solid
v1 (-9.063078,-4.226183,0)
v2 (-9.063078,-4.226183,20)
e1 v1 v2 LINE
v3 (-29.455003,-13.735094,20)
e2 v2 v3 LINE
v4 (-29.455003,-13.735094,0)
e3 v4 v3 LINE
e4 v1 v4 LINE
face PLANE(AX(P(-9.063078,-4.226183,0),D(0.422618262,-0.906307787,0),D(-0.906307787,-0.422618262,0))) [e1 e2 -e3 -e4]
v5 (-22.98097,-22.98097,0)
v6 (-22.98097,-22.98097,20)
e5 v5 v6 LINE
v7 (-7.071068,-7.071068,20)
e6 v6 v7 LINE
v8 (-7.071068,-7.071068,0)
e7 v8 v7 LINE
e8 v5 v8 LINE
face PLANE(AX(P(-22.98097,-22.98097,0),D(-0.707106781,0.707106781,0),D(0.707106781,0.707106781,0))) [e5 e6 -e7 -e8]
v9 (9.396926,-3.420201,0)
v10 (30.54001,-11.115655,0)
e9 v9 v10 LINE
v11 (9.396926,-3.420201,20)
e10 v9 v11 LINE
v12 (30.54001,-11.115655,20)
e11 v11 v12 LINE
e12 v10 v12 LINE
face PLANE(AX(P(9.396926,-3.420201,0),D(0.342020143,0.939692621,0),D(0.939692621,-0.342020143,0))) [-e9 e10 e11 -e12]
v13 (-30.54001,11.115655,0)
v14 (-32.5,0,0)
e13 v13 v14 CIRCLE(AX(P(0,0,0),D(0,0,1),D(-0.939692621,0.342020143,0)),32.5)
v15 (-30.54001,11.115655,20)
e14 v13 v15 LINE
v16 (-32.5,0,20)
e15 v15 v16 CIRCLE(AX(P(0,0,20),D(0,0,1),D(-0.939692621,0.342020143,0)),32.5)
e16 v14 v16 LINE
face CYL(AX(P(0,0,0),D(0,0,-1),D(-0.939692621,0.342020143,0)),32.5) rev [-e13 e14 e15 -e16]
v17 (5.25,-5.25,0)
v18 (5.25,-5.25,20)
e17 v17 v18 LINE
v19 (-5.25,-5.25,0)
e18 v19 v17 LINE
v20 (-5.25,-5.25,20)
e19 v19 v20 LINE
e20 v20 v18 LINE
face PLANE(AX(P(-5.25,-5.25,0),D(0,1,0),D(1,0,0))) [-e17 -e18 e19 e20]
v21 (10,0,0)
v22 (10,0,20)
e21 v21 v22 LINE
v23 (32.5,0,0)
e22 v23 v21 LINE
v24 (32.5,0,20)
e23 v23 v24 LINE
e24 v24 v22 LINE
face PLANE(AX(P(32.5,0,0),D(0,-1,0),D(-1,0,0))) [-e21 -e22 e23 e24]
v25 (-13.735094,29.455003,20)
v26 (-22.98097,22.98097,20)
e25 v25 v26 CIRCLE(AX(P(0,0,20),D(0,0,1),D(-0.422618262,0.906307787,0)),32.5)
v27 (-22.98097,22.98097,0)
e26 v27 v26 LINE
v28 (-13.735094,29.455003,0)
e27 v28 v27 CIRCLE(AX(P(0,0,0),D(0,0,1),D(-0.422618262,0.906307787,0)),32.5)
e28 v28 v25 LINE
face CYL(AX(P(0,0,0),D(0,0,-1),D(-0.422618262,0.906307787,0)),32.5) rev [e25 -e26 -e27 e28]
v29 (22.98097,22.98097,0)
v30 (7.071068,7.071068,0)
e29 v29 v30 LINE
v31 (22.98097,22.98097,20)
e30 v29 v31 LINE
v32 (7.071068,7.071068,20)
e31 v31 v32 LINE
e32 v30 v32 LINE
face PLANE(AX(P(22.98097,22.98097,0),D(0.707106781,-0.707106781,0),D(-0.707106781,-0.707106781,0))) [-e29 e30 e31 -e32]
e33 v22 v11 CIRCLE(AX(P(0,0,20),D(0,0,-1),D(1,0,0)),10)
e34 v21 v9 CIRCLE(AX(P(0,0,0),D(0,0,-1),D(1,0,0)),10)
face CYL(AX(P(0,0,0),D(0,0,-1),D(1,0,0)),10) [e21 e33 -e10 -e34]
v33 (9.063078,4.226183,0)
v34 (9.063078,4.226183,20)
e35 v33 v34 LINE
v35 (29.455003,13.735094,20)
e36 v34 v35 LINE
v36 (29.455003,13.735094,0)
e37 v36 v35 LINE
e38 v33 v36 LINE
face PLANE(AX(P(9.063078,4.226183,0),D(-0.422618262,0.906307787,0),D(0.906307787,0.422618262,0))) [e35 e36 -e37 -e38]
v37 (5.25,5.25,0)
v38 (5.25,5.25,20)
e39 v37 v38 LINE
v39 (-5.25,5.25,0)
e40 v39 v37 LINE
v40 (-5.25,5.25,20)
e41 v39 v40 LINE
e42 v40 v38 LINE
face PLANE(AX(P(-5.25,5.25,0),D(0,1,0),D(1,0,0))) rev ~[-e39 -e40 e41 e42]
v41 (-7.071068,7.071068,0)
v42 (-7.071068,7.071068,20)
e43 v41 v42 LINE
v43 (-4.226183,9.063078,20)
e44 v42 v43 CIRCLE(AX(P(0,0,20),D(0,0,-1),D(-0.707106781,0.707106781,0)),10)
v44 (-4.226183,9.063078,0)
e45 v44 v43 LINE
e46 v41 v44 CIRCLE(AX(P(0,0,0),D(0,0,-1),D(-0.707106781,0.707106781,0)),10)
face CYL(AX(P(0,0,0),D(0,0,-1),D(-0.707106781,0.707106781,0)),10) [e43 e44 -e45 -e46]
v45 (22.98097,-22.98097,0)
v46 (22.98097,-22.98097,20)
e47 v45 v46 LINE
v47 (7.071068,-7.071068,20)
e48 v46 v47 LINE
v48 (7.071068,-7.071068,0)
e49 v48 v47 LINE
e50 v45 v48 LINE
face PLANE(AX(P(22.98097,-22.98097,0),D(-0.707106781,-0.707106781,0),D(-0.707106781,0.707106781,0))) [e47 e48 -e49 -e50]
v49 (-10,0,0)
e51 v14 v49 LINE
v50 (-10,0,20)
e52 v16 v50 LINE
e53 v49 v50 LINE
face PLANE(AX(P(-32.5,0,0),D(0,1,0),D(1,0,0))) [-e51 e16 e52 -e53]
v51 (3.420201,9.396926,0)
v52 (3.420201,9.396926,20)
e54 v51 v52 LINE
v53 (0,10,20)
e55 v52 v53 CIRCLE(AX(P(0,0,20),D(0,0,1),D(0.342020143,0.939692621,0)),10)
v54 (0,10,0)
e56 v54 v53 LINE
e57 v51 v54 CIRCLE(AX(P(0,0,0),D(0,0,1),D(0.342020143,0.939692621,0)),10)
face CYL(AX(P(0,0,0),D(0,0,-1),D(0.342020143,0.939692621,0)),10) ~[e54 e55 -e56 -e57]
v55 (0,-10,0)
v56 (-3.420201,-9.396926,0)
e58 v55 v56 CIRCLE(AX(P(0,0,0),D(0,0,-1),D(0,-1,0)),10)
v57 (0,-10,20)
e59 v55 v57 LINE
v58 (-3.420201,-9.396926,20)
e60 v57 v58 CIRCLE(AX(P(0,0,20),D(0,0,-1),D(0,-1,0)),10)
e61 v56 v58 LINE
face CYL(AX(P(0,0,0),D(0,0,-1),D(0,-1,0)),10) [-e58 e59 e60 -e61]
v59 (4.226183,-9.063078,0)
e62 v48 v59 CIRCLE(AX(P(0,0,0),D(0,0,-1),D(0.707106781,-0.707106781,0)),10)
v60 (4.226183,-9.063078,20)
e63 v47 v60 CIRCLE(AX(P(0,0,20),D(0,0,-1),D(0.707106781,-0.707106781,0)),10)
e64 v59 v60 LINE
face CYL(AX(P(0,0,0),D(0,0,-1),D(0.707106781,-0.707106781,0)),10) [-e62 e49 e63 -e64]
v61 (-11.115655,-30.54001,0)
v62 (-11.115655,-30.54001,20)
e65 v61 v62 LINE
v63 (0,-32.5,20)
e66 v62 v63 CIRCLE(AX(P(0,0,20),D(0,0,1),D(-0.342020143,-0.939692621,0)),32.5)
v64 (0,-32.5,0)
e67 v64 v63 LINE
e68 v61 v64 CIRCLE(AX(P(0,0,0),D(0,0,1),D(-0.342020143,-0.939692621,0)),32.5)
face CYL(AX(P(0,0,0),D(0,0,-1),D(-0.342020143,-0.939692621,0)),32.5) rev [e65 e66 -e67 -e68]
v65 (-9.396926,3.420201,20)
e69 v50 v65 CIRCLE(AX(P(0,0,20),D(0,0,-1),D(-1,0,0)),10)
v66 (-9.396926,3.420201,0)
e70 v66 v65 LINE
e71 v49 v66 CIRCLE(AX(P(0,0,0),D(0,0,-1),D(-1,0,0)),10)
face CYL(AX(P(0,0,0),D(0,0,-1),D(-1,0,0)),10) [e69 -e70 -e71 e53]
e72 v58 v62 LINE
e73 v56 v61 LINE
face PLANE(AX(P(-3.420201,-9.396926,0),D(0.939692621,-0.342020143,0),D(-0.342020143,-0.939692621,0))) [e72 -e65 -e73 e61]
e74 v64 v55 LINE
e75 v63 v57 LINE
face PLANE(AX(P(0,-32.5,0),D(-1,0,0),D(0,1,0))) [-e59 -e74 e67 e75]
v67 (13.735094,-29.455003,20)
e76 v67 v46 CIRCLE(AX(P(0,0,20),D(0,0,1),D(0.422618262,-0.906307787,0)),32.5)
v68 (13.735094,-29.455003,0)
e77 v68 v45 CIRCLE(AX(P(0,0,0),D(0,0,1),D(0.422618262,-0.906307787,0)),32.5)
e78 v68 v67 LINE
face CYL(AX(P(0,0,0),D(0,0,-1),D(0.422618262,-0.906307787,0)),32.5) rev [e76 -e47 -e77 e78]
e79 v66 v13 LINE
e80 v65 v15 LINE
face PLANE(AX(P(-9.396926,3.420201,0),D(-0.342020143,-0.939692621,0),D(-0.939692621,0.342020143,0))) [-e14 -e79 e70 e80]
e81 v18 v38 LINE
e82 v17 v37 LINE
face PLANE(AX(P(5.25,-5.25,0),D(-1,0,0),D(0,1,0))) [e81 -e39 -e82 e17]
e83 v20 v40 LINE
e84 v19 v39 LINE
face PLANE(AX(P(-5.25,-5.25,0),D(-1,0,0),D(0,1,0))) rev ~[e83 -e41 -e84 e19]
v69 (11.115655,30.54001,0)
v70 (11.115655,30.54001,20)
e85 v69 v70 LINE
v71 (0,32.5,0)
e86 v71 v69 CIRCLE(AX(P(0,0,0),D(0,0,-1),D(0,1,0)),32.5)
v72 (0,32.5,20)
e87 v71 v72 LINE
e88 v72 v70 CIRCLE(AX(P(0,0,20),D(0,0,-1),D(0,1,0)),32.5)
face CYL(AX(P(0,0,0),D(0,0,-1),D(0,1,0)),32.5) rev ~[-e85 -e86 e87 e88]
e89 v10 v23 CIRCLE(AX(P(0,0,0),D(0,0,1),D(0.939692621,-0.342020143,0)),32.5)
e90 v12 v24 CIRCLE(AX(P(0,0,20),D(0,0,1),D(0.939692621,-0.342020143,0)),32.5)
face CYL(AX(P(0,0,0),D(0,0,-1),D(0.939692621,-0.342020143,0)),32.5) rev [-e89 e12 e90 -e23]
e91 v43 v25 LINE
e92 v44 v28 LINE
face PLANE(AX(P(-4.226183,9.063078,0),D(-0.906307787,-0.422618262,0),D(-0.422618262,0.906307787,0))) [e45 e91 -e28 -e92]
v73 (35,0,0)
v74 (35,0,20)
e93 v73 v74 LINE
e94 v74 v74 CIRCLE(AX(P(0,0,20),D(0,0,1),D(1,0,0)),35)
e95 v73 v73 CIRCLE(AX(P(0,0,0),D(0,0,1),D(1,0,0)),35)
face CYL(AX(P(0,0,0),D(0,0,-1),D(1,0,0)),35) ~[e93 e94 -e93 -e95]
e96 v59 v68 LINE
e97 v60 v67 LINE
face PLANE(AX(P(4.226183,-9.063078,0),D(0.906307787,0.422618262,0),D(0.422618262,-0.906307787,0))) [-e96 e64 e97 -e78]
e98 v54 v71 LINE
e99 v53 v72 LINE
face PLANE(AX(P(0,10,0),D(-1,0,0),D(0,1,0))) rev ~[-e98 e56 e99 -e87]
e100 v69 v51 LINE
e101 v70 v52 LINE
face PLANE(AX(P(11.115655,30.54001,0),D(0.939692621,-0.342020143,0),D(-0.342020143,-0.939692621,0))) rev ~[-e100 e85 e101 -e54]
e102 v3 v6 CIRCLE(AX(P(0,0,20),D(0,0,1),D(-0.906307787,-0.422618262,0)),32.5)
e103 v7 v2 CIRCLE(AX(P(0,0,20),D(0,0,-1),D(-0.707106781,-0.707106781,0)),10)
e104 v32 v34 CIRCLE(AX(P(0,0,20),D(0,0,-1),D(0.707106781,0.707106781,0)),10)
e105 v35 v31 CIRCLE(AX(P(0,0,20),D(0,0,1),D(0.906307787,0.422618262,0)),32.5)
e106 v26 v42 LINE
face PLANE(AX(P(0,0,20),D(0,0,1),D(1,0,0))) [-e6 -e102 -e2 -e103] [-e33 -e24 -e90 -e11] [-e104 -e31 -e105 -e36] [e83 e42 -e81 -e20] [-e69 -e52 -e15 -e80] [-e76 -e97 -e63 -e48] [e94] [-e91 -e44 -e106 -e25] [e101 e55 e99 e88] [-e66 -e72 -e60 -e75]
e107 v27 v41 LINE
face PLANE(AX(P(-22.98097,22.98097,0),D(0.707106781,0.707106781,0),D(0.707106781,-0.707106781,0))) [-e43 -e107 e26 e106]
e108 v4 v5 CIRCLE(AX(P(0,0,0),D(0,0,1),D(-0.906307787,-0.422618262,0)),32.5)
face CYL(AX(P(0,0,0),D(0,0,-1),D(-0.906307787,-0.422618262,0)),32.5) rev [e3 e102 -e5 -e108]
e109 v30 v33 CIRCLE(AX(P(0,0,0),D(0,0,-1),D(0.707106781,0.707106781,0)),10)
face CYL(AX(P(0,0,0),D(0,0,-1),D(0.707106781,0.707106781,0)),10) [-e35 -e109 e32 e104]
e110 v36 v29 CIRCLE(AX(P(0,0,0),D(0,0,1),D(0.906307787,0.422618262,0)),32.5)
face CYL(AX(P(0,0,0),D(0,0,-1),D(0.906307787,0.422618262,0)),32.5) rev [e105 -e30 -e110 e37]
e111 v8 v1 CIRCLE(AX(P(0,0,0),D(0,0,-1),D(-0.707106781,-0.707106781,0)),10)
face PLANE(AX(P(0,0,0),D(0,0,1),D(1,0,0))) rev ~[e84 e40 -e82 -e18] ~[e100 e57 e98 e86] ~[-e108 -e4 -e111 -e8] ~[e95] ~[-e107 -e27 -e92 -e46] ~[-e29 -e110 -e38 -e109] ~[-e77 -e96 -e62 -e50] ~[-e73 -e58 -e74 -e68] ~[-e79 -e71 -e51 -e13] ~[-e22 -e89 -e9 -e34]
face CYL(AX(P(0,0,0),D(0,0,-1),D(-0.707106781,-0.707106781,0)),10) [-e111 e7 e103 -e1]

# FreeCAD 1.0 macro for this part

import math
import FreeCAD as App
import Part
import Sketcher
from FreeCAD import Vector
Q = App.Units.Quantity


def add_polygon(sketch, points):
    """Adds a closed chain of lines whose ends are joined by coincident constraints."""
    first, n = sketch.GeometryCount, len(points)
    for a, b in zip(points, points[1:] + points[:1]):
        sketch.addGeometry(Part.LineSegment(App.Vector(*a, 0), App.Vector(*b, 0)), False)
    for i in range(n):
        sketch.addConstraint(Sketcher.Constraint("Coincident", first + i, 2, first + (i + 1) % n, 1))

doc = App.newDocument("Part")
params = doc.addObject("Spreadsheet::Sheet", "Params")
for row, (alias, value) in enumerate([
    ("sketch1_diameter", "70 mm"),
    ("sketch1_radius", "10 mm"),
    ("sketch1_radius2", "32.5 mm"),
    ("sketch1_width", "10.5 mm"),
    ("pad1_length", "20 mm"),
], start=1):
    params.set(f"A{row}", alias)
    params.set(f"B{row}", "=" + value)
    params.setAlias(f"B{row}", alias)

body = doc.addObject("PartDesign::Body", "Body")

sketch1 = body.newObject("Sketcher::SketchObject", "Sketch")
sketch1.AttachmentSupport = (doc.getObject("XY_Plane"), [""])
sketch1.MapMode = "FlatFace"
sketch1.addGeometry(Part.Circle(Vector(0, 0, 0), Vector(0, 0, 1), 35), False)
sketch1.addGeometry(Part.ArcOfCircle(Part.Circle(Vector(0, 0, 0), Vector(0, 0, 1), 32.5), math.radians(-110), math.radians(-90)), False)
sketch1.addGeometry(Part.LineSegment(Vector(-11.1, -30.5, 0), Vector(-3.4, -9.4, 0)), False)
sketch1.addGeometry(Part.ArcOfCircle(Part.Circle(Vector(0, 0, 0), Vector(0, 0, 1), 10), math.radians(-110), math.radians(-90)), False)
sketch1.addGeometry(Part.LineSegment(Vector(0, -10, 0), Vector(0, -32.5, 0)), False)
sketch1.addGeometry(Part.LineSegment(Vector(-29.5, -13.7, 0), Vector(-9.1, -4.2, 0)), False)
sketch1.addGeometry(Part.ArcOfCircle(Part.Circle(Vector(0, 0, 0), Vector(0, 0, 1), 10), math.radians(-155), math.radians(-135)), False)
sketch1.addGeometry(Part.LineSegment(Vector(-7.1, -7.1, 0), Vector(-23, -23, 0)), False)
sketch1.addGeometry(Part.ArcOfCircle(Part.Circle(Vector(0, 0, 0), Vector(0, 0, 1), 32.5), math.radians(-155), math.radians(-135)), False)
sketch1.addGeometry(Part.LineSegment(Vector(13.7, -29.5, 0), Vector(4.2, -9.1, 0)), False)
sketch1.addGeometry(Part.ArcOfCircle(Part.Circle(Vector(0, 0, 0), Vector(0, 0, 1), 10), math.radians(-65), math.radians(-45)), False)
sketch1.addGeometry(Part.LineSegment(Vector(7.1, -7.1, 0), Vector(23, -23, 0)), False)
sketch1.addGeometry(Part.ArcOfCircle(Part.Circle(Vector(0, 0, 0), Vector(0, 0, 1), 32.5), math.radians(-65), math.radians(-45)), False)
sketch1.addGeometry(Part.ArcOfCircle(Part.Circle(Vector(0, 0, 0), Vector(0, 0, 1), 32.5), math.radians(-20), math.radians(0)), False)
sketch1.addGeometry(Part.LineSegment(Vector(30.5, -11.1, 0), Vector(9.4, -3.4, 0)), False)
sketch1.addGeometry(Part.ArcOfCircle(Part.Circle(Vector(0, 0, 0), Vector(0, 0, 1), 10), math.radians(-20), math.radians(0)), False)
sketch1.addGeometry(Part.LineSegment(Vector(10, 0, 0), Vector(32.5, 0, 0)), False)
sketch1.addGeometry(Part.ArcOfCircle(Part.Circle(Vector(0, 0, 0), Vector(0, 0, 1), 32.5), math.radians(160), math.radians(180)), False)
sketch1.addGeometry(Part.LineSegment(Vector(-30.5, 11.1, 0), Vector(-9.4, 3.4, 0)), False)
sketch1.addGeometry(Part.ArcOfCircle(Part.Circle(Vector(0, 0, 0), Vector(0, 0, 1), 10), math.radians(160), math.radians(180)), False)
sketch1.addGeometry(Part.LineSegment(Vector(-10, 0, 0), Vector(-32.5, 0, 0)), False)
sketch1.addGeometry(Part.ArcOfCircle(Part.Circle(Vector(0, 0, 0), Vector(0, 0, 1), 32.5), math.radians(115), math.radians(135)), False)
sketch1.addGeometry(Part.LineSegment(Vector(-13.7, 29.5, 0), Vector(-4.2, 9.1, 0)), False)
sketch1.addGeometry(Part.ArcOfCircle(Part.Circle(Vector(0, 0, 0), Vector(0, 0, 1), 10), math.radians(115), math.radians(135)), False)
sketch1.addGeometry(Part.LineSegment(Vector(-7.1, 7.1, 0), Vector(-23, 23, 0)), False)
add_polygon(sketch1, [(5.2, -5.2), (-5.2, -5.2), (-5.2, 5.2), (5.2, 5.2)])
sketch1.addGeometry(Part.LineSegment(Vector(29.5, 13.7, 0), Vector(9.1, 4.2, 0)), False)
sketch1.addGeometry(Part.ArcOfCircle(Part.Circle(Vector(0, 0, 0), Vector(0, 0, 1), 10), math.radians(25), math.radians(45)), False)
sketch1.addGeometry(Part.LineSegment(Vector(7.1, 7.1, 0), Vector(23, 23, 0)), False)
sketch1.addGeometry(Part.ArcOfCircle(Part.Circle(Vector(0, 0, 0), Vector(0, 0, 1), 32.5), math.radians(25), math.radians(45)), False)
sketch1.addGeometry(Part.ArcOfCircle(Part.Circle(Vector(0, 0, 0), Vector(0, 0, 1), 10), math.radians(70), math.radians(90)), False)
sketch1.addGeometry(Part.LineSegment(Vector(0, 10, 0), Vector(0, 32.5, 0)), False)
sketch1.addGeometry(Part.ArcOfCircle(Part.Circle(Vector(0, 0, 0), Vector(0, 0, 1), 32.5), math.radians(70), math.radians(90)), False)
sketch1.addGeometry(Part.LineSegment(Vector(11.1, 30.5, 0), Vector(3.4, 9.4, 0)), False)
sketch1.addConstraint([
    Sketcher.Constraint("Coincident", 1, 1, 2, 1),
    Sketcher.Constraint("Coincident", 2, 2, 3, 1),
    Sketcher.Constraint("Coincident", 3, 2, 4, 1),
    Sketcher.Constraint("Coincident", 4, 2, 1, 2),
    Sketcher.Constraint("Coincident", 5, 2, 6, 1),
    Sketcher.Constraint("Coincident", 6, 2, 7, 1),
    Sketcher.Constraint("Coincident", 7, 2, 8, 2),
    Sketcher.Constraint("Coincident", 8, 1, 5, 1),
    Sketcher.Constraint("Coincident", 9, 2, 10, 1),
    Sketcher.Constraint("Coincident", 10, 2, 11, 1),
    Sketcher.Constraint("Coincident", 11, 2, 12, 2),
    Sketcher.Constraint("Coincident", 12, 1, 9, 1),
    Sketcher.Constraint("Coincident", 13, 1, 14, 1),
    Sketcher.Constraint("Coincident", 14, 2, 15, 1),
    Sketcher.Constraint("Coincident", 15, 2, 16, 1),
    Sketcher.Constraint("Coincident", 16, 2, 13, 2),
    Sketcher.Constraint("Coincident", 17, 1, 18, 1),
    Sketcher.Constraint("Coincident", 18, 2, 19, 1),
    Sketcher.Constraint("Coincident", 19, 2, 20, 1),
    Sketcher.Constraint("Coincident", 20, 2, 17, 2),
    Sketcher.Constraint("Coincident", 21, 1, 22, 1),
    Sketcher.Constraint("Coincident", 22, 2, 23, 1),
    Sketcher.Constraint("Coincident", 23, 2, 24, 1),
    Sketcher.Constraint("Coincident", 24, 2, 21, 2),
    Sketcher.Constraint("Coincident", 29, 2, 30, 1),
    Sketcher.Constraint("Coincident", 30, 2, 31, 1),
    Sketcher.Constraint("Coincident", 31, 2, 32, 2),
    Sketcher.Constraint("Coincident", 32, 1, 29, 1),
    Sketcher.Constraint("Coincident", 33, 2, 34, 1),
    Sketcher.Constraint("Coincident", 34, 2, 35, 2),
    Sketcher.Constraint("Coincident", 35, 1, 36, 1),
    Sketcher.Constraint("Coincident", 36, 2, 33, 1),
    Sketcher.Constraint("Vertical", 4),
    Sketcher.Constraint("Horizontal", 16),
    Sketcher.Constraint("Horizontal", 20),
    Sketcher.Constraint("Horizontal", 25),
    Sketcher.Constraint("Vertical", 26),
    Sketcher.Constraint("Horizontal", 27),
    Sketcher.Constraint("Vertical", 28),
    Sketcher.Constraint("Vertical", 34),
    Sketcher.Constraint("Coincident", 0, 3, -1, 1),
    Sketcher.Constraint("Coincident", 1, 3, -1, 1),
    Sketcher.Constraint("Coincident", 3, 3, -1, 1),
    Sketcher.Constraint("Coincident", 6, 3, -1, 1),
    Sketcher.Constraint("Coincident", 8, 3, -1, 1),
    Sketcher.Constraint("Coincident", 10, 3, -1, 1),
    Sketcher.Constraint("Coincident", 12, 3, -1, 1),
    Sketcher.Constraint("Coincident", 13, 3, -1, 1),
    Sketcher.Constraint("Coincident", 15, 3, -1, 1),
    Sketcher.Constraint("Coincident", 17, 3, -1, 1),
    Sketcher.Constraint("Coincident", 19, 3, -1, 1),
    Sketcher.Constraint("Coincident", 21, 3, -1, 1),
    Sketcher.Constraint("Coincident", 23, 3, -1, 1),
    Sketcher.Constraint("Coincident", 30, 3, -1, 1),
    Sketcher.Constraint("Coincident", 32, 3, -1, 1),
    Sketcher.Constraint("Coincident", 33, 3, -1, 1),
    Sketcher.Constraint("Coincident", 35, 3, -1, 1),
    Sketcher.Constraint("Equal", 3, 6),
    Sketcher.Constraint("Equal", 1, 8),
    Sketcher.Constraint("Equal", 6, 10),
    Sketcher.Constraint("Equal", 8, 12),
    Sketcher.Constraint("Equal", 12, 13),
    Sketcher.Constraint("Equal", 10, 15),
    Sketcher.Constraint("Equal", 13, 17),
    Sketcher.Constraint("Equal", 15, 19),
    Sketcher.Constraint("Equal", 17, 21),
    Sketcher.Constraint("Equal", 19, 23),
    Sketcher.Constraint("Equal", 23, 30),
    Sketcher.Constraint("Equal", 21, 32),
    Sketcher.Constraint("Equal", 30, 33),
    Sketcher.Constraint("Equal", 32, 35),
    Sketcher.Constraint("Symmetric", 25, 2, 27, 2, -1, 1),
    Sketcher.Constraint("PointOnObject", 3, 2, -2),
    Sketcher.Constraint("PointOnObject", 15, 2, -1),
    Sketcher.Constraint("PointOnObject", 19, 2, -1),
    Sketcher.Constraint("PointOnObject", 33, 2, -2),
    Sketcher.Constraint("Perpendicular", 5, 9),
    Sketcher.Constraint("Perpendicular", 7, 11),
    Sketcher.Constraint("Perpendicular", 2, 14),
    Sketcher.Constraint("Parallel", 14, 18),
    Sketcher.Constraint("Parallel", 9, 22),
    Sketcher.Constraint("Parallel", 11, 24),
    Sketcher.Constraint("Perpendicular", 22, 29),
    Sketcher.Constraint("Perpendicular", 24, 31),
    Sketcher.Constraint("Perpendicular", 18, 36),
    Sketcher.Constraint("Horizontal", 6, 2, 10, 2),
    Sketcher.Constraint("Horizontal", 7, 2, 11, 2),
    Sketcher.Constraint("Horizontal", 23, 2, 30, 2),
    Sketcher.Constraint("Vertical", 6, 2, 23, 2),
    Sketcher.Constraint("Equal", 27, 26),
    Sketcher.Constraint("Diameter", 0, Q("70 mm")),
    Sketcher.Constraint("Radius", 3, Q("10 mm")),
    Sketcher.Constraint("Radius", 1, Q("32.5 mm")),
    Sketcher.Constraint("Angle", 2, Q("70 deg")),
    Sketcher.Constraint("Angle", 5, Q("25 deg")),
    Sketcher.Constraint("DistanceX", 25, 2, 25, 1, Q("10.5 mm")),
    Sketcher.Constraint("DistanceX", 2, 2, -1, 1, Q("3.420201 mm")),
    Sketcher.Constraint("DistanceY", 14, 2, -1, 1, Q("3.420201 mm")),
    Sketcher.Constraint("DistanceY", -1, 1, 18, 2, Q("3.420201 mm")),
    Sketcher.Constraint("DistanceX", -1, 1, 36, 2, Q("3.420201 mm")),
    Sketcher.Constraint("DistanceX", 8, 1, 2, 2, Q("26.034802 mm")),
    Sketcher.Constraint("DistanceY", 18, 2, 21, 1, Q("26.034802 mm")),
    Sketcher.Constraint("DistanceX", 7, 2, -1, 1, Q("22.98097 mm")),
    Sketcher.Constraint("DistanceY", 2, 2, 9, 2, Q("0.333848 mm")),
    Sketcher.Constraint("DistanceX", 29, 2, 14, 2, Q("0.333848 mm")),
])
sketch1.setExpression("Constraints[94]", "Params.sketch1_diameter")
sketch1.setExpression("Constraints[95]", "Params.sketch1_radius")
sketch1.setExpression("Constraints[96]", "Params.sketch1_radius2")
sketch1.setExpression("Constraints[99]", "Params.sketch1_width")
pad1 = body.newObject("PartDesign::Pad", "Pad")
pad1.Profile = sketch1
pad1.setExpression("Length", "Params.pad1_length")

doc.recompute()
